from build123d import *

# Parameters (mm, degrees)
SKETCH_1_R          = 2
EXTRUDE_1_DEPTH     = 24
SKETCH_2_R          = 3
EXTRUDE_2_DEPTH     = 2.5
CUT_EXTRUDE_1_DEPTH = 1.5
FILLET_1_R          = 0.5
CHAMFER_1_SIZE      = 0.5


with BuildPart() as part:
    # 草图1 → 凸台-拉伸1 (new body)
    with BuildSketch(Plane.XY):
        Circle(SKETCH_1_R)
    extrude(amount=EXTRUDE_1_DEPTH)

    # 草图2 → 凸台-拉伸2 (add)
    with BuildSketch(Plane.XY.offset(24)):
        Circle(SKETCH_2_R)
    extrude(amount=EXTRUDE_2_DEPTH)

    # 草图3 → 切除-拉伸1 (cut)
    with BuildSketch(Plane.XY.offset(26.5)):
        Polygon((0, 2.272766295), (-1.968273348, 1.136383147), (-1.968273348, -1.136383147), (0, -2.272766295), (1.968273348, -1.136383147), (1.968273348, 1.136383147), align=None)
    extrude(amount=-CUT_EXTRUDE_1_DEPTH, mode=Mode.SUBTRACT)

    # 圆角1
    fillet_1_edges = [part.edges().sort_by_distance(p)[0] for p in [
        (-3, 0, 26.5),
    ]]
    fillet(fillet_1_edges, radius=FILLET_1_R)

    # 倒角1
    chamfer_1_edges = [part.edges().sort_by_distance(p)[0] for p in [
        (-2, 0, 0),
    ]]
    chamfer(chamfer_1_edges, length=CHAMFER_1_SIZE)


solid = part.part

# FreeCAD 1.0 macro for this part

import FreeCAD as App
import Part
import Sketcher
Q = App.Units.Quantity


def edges_at(feature, points):
    """Names of the edges that pass closest to the given points."""
    edges = feature.Shape.Edges
    near = lambda p: min(range(len(edges)), key=lambda i: edges[i].distToShape(Part.Vertex(*p))[0])
    return sorted({f"Edge{near(p) + 1}" for p in points})

doc = App.newDocument("Part")
params = doc.addObject("Spreadsheet::Sheet", "Params")
for row, (alias, value) in enumerate([
    ("sketch1_diameter", "4 mm"),
    ("pad1_length", "24 mm"),
    ("sketch2_diameter", "6 mm"),
    ("pad2_length", "2.5 mm"),
    ("pocket1_length", "1.5 mm"),
    ("fillet_radius", "0.5 mm"),
    ("chamfer_size", "0.5 mm"),
], start=1):
    params.set(f"A{row}", alias)
    params.set(f"B{row}", "=" + value)
    params.setAlias(f"B{row}", alias)

body = doc.addObject("PartDesign::Body", "Body")

sketch1 = doc.addObject("Sketcher::SketchObject", "Sketch")
body.addObject(sketch1)
sketch1.AttachmentSupport = (doc.XY_Plane, [""])
sketch1.MapMode = "FlatFace"
sketch1.addGeometry(Part.Circle(App.Vector(0, 0, 0), App.Vector(0, 0, 1), 2), False)
sketch1.addConstraint(Sketcher.Constraint("Coincident", 0, 3, -1, 1))
sketch1.addConstraint(Sketcher.Constraint("Diameter", 0, 4.0))
sketch1.setExpression("Constraints[1]", "Params.sketch1_diameter")
pad1 = doc.addObject("PartDesign::Pad", "Pad")
body.addObject(pad1)
pad1.Profile = sketch1
pad1.setExpression("Length", "Params.pad1_length")

sketch2 = doc.addObject("Sketcher::SketchObject", "Sketch001")
body.addObject(sketch2)
sketch2.AttachmentSupport = (doc.XY_Plane, [""])
sketch2.MapMode = "FlatFace"
sketch2.AttachmentOffset = App.Placement(App.Vector(0, 0, 24), App.Rotation())
sketch2.addGeometry(Part.Circle(App.Vector(0, 0, 0), App.Vector(0, 0, 1), 3), False)
sketch2.addConstraint(Sketcher.Constraint("Coincident", 0, 3, -1, 1))
sketch2.addConstraint(Sketcher.Constraint("Diameter", 0, 6.0))
sketch2.setExpression("Constraints[1]", "Params.sketch2_diameter")
pad2 = doc.addObject("PartDesign::Pad", "Pad001")
body.addObject(pad2)
pad2.Profile = sketch2
pad2.setExpression("Length", "Params.pad2_length")

sketch3 = doc.addObject("Sketcher::SketchObject", "Sketch002")
body.addObject(sketch3)
sketch3.AttachmentSupport = (doc.XY_Plane, [""])
sketch3.MapMode = "FlatFace"
sketch3.AttachmentOffset = App.Placement(App.Vector(0, 0, 26.5), App.Rotation())
sketch3.addGeometry(Part.LineSegment(App.Vector(0, 2.3, 0), App.Vector(-2, 1.1, 0)), False)
sketch3.addGeometry(Part.LineSegment(App.Vector(-2, 1.1, 0), App.Vector(-2, -1.1, 0)), False)
sketch3.addGeometry(Part.LineSegment(App.Vector(-2, -1.1, 0), App.Vector(0, -2.3, 0)), False)
sketch3.addGeometry(Part.LineSegment(App.Vector(0, -2.3, 0), App.Vector(2, -1.1, 0)), False)
sketch3.addGeometry(Part.LineSegment(App.Vector(2, -1.1, 0), App.Vector(2, 1.1, 0)), False)
sketch3.addGeometry(Part.LineSegment(App.Vector(2, 1.1, 0), App.Vector(0, 2.3, 0)), False)
sketch3.addConstraint(Sketcher.Constraint("Coincident", 0, 2, 1, 1))
sketch3.addConstraint(Sketcher.Constraint("Coincident", 1, 2, 2, 1))
sketch3.addConstraint(Sketcher.Constraint("Coincident", 2, 2, 3, 1))
sketch3.addConstraint(Sketcher.Constraint("Coincident", 3, 2, 4, 1))
sketch3.addConstraint(Sketcher.Constraint("Coincident", 4, 2, 5, 1))
sketch3.addConstraint(Sketcher.Constraint("Coincident", 5, 2, 0, 1))
sketch3.addConstraint(Sketcher.Constraint("Vertical", 1))
sketch3.addConstraint(Sketcher.Constraint("Vertical", 4))
sketch3.addConstraint(Sketcher.Constraint("Symmetric", 0, 2, 3, 2, -1, 1))
sketch3.addConstraint(Sketcher.Constraint("Symmetric", 2, 2, 5, 2, -1, 1))
sketch3.addConstraint(Sketcher.Constraint("PointOnObject", 2, 2, -2))
sketch3.addConstraint(Sketcher.Constraint("Parallel", 2, 5))
sketch3.addConstraint(Sketcher.Constraint("Horizontal", 1, 2, 3, 2))
sketch3.addConstraint(Sketcher.Constraint("Angle", 0, Q("-150 deg")))
sketch3.addConstraint(Sketcher.Constraint("DistanceY", 1, 2, 1, 1, 2.272766))
sketch3.addConstraint(Sketcher.Constraint("DistanceY", 2, 2, 0, 2, 3.409149))
pocket1 = doc.addObject("PartDesign::Pocket", "Pocket")
body.addObject(pocket1)
pocket1.Profile = sketch3
pocket1.setExpression("Length", "Params.pocket1_length")
doc.recompute()

fillet = doc.addObject("PartDesign::Fillet", "Fillet")
body.addObject(fillet)
fillet.Base = (pocket1, edges_at(pocket1, [(-3, 0, 26.5)]))
fillet.setExpression("Radius", "Params.fillet_radius")
doc.recompute()

chamfer = doc.addObject("PartDesign::Chamfer", "Chamfer")
body.addObject(chamfer)
chamfer.Base = (fillet, edges_at(fillet, [(-2, 0, 0)]))
chamfer.setExpression("Size", "Params.chamfer_size")

doc.recompute()
